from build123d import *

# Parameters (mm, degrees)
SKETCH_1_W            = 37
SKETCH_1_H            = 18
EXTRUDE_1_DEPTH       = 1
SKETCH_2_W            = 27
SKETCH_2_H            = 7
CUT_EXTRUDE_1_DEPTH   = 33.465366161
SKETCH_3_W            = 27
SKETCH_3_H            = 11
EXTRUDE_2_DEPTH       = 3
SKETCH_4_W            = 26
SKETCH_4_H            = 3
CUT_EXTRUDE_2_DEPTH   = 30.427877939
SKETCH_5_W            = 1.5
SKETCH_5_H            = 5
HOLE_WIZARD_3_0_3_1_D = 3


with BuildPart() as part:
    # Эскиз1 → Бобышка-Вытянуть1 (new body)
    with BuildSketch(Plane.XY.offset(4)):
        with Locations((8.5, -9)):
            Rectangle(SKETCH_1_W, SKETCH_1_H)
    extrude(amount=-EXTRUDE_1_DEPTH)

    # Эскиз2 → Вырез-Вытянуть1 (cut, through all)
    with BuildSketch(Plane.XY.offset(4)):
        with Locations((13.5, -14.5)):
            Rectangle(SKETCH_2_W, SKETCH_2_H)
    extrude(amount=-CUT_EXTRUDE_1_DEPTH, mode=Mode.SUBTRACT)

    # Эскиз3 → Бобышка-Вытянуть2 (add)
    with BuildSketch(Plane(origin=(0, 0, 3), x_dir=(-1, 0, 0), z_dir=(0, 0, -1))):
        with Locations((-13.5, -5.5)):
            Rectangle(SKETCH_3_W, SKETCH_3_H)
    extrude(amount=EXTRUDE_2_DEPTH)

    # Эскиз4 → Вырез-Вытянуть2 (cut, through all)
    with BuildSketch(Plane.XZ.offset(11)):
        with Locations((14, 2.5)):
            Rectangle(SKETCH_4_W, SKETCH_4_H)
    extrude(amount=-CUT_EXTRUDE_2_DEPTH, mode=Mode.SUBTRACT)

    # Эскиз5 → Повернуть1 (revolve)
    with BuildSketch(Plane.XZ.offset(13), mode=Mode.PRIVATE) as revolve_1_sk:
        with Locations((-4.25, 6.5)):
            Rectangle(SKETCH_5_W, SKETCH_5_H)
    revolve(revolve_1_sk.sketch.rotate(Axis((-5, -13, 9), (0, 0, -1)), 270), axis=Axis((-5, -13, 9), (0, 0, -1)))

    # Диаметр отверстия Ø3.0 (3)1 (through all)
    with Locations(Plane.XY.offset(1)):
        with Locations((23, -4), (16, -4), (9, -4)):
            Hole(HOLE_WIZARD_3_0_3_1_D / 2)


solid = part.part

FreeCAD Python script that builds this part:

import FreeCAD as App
import Part
import Sketcher

V = App.Vector


def add_polygon(sketch, points):
    """Adds a closed chain of lines whose ends are joined by coincident constraints."""
    first, n = sketch.GeometryCount, len(points)
    for a, b in zip(points, points[1:] + points[:1]):
        sketch.addGeometry(Part.LineSegment(App.Vector(*a, 0), App.Vector(*b, 0)), False)
    for i in range(n):
        sketch.addConstraint(Sketcher.Constraint("Coincident", first + i, 2, first + (i + 1) % n, 1))

doc = App.newDocument("Part")
body = doc.addObject("PartDesign::Body", "Body")

sketch1 = doc.addObject("Sketcher::SketchObject", "Sketch")
body.addObject(sketch1)
sketch1.AttachmentSupport = (doc.XY_Plane, [""])
sketch1.MapMode = "FlatFace"
sketch1.AttachmentOffset = App.Placement(V(0, 0, 4), App.Rotation())
add_polygon(sketch1, [(-10, 0), (-10, -18), (27, -18), (27, 0)])
sketch1.addConstraint(Sketcher.Constraint("Vertical", 0))
sketch1.addConstraint(Sketcher.Constraint("Horizontal", 1))
sketch1.addConstraint(Sketcher.Constraint("Vertical", 2))
sketch1.addConstraint(Sketcher.Constraint("Horizontal", 3))
sketch1.addConstraint(Sketcher.Constraint("PointOnObject", 2, 2, -1))
sketch1.addConstraint(Sketcher.Constraint("DistanceX", 1, 1, 1, 2, 37.0))
sketch1.addConstraint(Sketcher.Constraint("DistanceY", 0, 2, 0, 1, 18.0))
sketch1.addConstraint(Sketcher.Constraint("DistanceX", 0, 2, -1, 1, 10.0))
pad1 = doc.addObject("PartDesign::Pad", "Pad")
body.addObject(pad1)
pad1.Profile = sketch1
pad1.Length = 1
pad1.Reversed = True

sketch2 = doc.addObject("Sketcher::SketchObject", "Sketch001")
body.addObject(sketch2)
sketch2.AttachmentSupport = (doc.XY_Plane, [""])
sketch2.MapMode = "FlatFace"
sketch2.AttachmentOffset = App.Placement(V(0, 0, 4), App.Rotation())
add_polygon(sketch2, [(0, -11), (0, -18), (27, -18), (27, -11)])
sketch2.addConstraint(Sketcher.Constraint("Vertical", 0))
sketch2.addConstraint(Sketcher.Constraint("Horizontal", 1))
sketch2.addConstraint(Sketcher.Constraint("Vertical", 2))
sketch2.addConstraint(Sketcher.Constraint("Horizontal", 3))
sketch2.addConstraint(Sketcher.Constraint("PointOnObject", 0, 2, -2))
sketch2.addConstraint(Sketcher.Constraint("DistanceX", 1, 1, 1, 2, 27.0))
sketch2.addConstraint(Sketcher.Constraint("DistanceY", 0, 2, 0, 1, 7.0))
sketch2.addConstraint(Sketcher.Constraint("DistanceY", 0, 2, -1, 1, 18.0))
pocket1 = doc.addObject("PartDesign::Pocket", "Pocket")
body.addObject(pocket1)
pocket1.Profile = sketch2
pocket1.Type = "ThroughAll"

sketch3 = doc.addObject("Sketcher::SketchObject", "Sketch002")
body.addObject(sketch3)
sketch3.AttachmentSupport = (doc.XY_Plane, [""])
sketch3.MapMode = "FlatFace"
sketch3.AttachmentOffset = App.Placement(V(0, 0, 3), App.Rotation())
add_polygon(sketch3, [(27, 0), (27, -11), (0, -11), (0, 0)])
sketch3.addConstraint(Sketcher.Constraint("Vertical", 0))
sketch3.addConstraint(Sketcher.Constraint("Horizontal", 1))
sketch3.addConstraint(Sketcher.Constraint("Vertical", 2))
sketch3.addConstraint(Sketcher.Constraint("Horizontal", 3))
sketch3.addConstraint(Sketcher.Constraint("Coincident", 2, 2, -1, 1))
sketch3.addConstraint(Sketcher.Constraint("DistanceX", 1, 2, 1, 1, 27.0))
sketch3.addConstraint(Sketcher.Constraint("DistanceY", 0, 2, 0, 1, 11.0))
pad2 = doc.addObject("PartDesign::Pad", "Pad001")
body.addObject(pad2)
pad2.Profile = sketch3
pad2.Length = 3
pad2.Reversed = True

sketch4 = doc.addObject("Sketcher::SketchObject", "Sketch003")
body.addObject(sketch4)
sketch4.AttachmentSupport = (doc.XZ_Plane, [""])
sketch4.MapMode = "FlatFace"
sketch4.AttachmentOffset = App.Placement(V(0, 0, 11), App.Rotation())
add_polygon(sketch4, [(1, 4), (1, 1), (27, 1), (27, 4)])
sketch4.addConstraint(Sketcher.Constraint("Vertical", 0))
sketch4.addConstraint(Sketcher.Constraint("Horizontal", 1))
sketch4.addConstraint(Sketcher.Constraint("Vertical", 2))
sketch4.addConstraint(Sketcher.Constraint("Horizontal", 3))
sketch4.addConstraint(Sketcher.Constraint("DistanceX", 1, 1, 1, 2, 26.0))
sketch4.addConstraint(Sketcher.Constraint("DistanceY", 0, 2, 0, 1, 3.0))
sketch4.addConstraint(Sketcher.Constraint("DistanceX", -1, 1, 0, 2, 1.0))
sketch4.addConstraint(Sketcher.Constraint("DistanceY", -1, 1, 0, 2, 1.0))
pocket2 = doc.addObject("PartDesign::Pocket", "Pocket001")
body.addObject(pocket2)
pocket2.Profile = sketch4
pocket2.Type = "ThroughAll"

sketch5 = doc.addObject("Sketcher::SketchObject", "Sketch004")
body.addObject(sketch5)
sketch5.AttachmentSupport = (doc.XZ_Plane, [""])
sketch5.MapMode = "FlatFace"
sketch5.AttachmentOffset = App.Placement(V(0, 0, 13), App.Rotation())
add_polygon(sketch5, [(-5, 9), (-5, 4), (-3.5, 4), (-3.5, 9)])
sketch5.addGeometry(Part.LineSegment(V(-5, 9, 0), V(-5, 4, 0)), True)
sketch5.addConstraint(Sketcher.Constraint("Vertical", 0))
sketch5.addConstraint(Sketcher.Constraint("Horizontal", 1))
sketch5.addConstraint(Sketcher.Constraint("Vertical", 2))
sketch5.addConstraint(Sketcher.Constraint("Horizontal", 3))
sketch5.addConstraint(Sketcher.Constraint("Vertical", 4))
sketch5.addConstraint(Sketcher.Constraint("Coincident", 4, 1, 3, 2))
sketch5.addConstraint(Sketcher.Constraint("Horizontal", 1, 2, 4, 2))
sketch5.addConstraint(Sketcher.Constraint("DistanceY", 0, 2, 0, 1, 5.0))
sketch5.addConstraint(Sketcher.Constraint("DistanceX", 1, 1, 1, 2, 1.5))
sketch5.addConstraint(Sketcher.Constraint("DistanceX", 0, 2, -1, 1, 5.0))
sketch5.addConstraint(Sketcher.Constraint("DistanceY", -1, 1, 0, 2, 4.0))
revolution = doc.addObject("PartDesign::Revolution", "Revolution")
body.addObject(revolution)
revolution.Profile = sketch5
revolution.ReferenceAxis = (sketch5, ["Axis0"])
revolution.Angle = 360

sketch6 = doc.addObject("Sketcher::SketchObject", "Sketch005")
body.addObject(sketch6)
sketch6.AttachmentSupport = (doc.XY_Plane, [""])
sketch6.MapMode = "FlatFace"
sketch6.AttachmentOffset = App.Placement(V(0, 0, 1), App.Rotation())
sketch6.addGeometry(Part.Circle(V(23, -4, 0), V(0, 0, 1), 1.5), False)
sketch6.addGeometry(Part.Circle(V(16, -4, 0), V(0, 0, 1), 1.5), False)
sketch6.addGeometry(Part.Circle(V(9, -4, 0), V(0, 0, 1), 1.5), False)
sketch6.addConstraint(Sketcher.Constraint("Equal", 0, 1))
sketch6.addConstraint(Sketcher.Constraint("Equal", 1, 2))
sketch6.addConstraint(Sketcher.Constraint("Horizontal", 0, 3, 1, 3))
sketch6.addConstraint(Sketcher.Constraint("Horizontal", 1, 3, 2, 3))
sketch6.addConstraint(Sketcher.Constraint("Diameter", 0, 3.0))
sketch6.addConstraint(Sketcher.Constraint("DistanceX", -1, 1, 0, 3, 23.0))
sketch6.addConstraint(Sketcher.Constraint("DistanceY", 0, 3, -1, 1, 4.0))
sketch6.addConstraint(Sketcher.Constraint("DistanceX", -1, 1, 1, 3, 16.0))
sketch6.addConstraint(Sketcher.Constraint("DistanceX", -1, 1, 2, 3, 9.0))
doc.recompute()
hole = doc.addObject("PartDesign::Hole", "Hole")
body.addObject(hole)
hole.Profile = sketch6
hole.ThreadType = "None"
hole.Diameter = 3
hole.DepthType = "ThroughAll"

doc.recompute()
